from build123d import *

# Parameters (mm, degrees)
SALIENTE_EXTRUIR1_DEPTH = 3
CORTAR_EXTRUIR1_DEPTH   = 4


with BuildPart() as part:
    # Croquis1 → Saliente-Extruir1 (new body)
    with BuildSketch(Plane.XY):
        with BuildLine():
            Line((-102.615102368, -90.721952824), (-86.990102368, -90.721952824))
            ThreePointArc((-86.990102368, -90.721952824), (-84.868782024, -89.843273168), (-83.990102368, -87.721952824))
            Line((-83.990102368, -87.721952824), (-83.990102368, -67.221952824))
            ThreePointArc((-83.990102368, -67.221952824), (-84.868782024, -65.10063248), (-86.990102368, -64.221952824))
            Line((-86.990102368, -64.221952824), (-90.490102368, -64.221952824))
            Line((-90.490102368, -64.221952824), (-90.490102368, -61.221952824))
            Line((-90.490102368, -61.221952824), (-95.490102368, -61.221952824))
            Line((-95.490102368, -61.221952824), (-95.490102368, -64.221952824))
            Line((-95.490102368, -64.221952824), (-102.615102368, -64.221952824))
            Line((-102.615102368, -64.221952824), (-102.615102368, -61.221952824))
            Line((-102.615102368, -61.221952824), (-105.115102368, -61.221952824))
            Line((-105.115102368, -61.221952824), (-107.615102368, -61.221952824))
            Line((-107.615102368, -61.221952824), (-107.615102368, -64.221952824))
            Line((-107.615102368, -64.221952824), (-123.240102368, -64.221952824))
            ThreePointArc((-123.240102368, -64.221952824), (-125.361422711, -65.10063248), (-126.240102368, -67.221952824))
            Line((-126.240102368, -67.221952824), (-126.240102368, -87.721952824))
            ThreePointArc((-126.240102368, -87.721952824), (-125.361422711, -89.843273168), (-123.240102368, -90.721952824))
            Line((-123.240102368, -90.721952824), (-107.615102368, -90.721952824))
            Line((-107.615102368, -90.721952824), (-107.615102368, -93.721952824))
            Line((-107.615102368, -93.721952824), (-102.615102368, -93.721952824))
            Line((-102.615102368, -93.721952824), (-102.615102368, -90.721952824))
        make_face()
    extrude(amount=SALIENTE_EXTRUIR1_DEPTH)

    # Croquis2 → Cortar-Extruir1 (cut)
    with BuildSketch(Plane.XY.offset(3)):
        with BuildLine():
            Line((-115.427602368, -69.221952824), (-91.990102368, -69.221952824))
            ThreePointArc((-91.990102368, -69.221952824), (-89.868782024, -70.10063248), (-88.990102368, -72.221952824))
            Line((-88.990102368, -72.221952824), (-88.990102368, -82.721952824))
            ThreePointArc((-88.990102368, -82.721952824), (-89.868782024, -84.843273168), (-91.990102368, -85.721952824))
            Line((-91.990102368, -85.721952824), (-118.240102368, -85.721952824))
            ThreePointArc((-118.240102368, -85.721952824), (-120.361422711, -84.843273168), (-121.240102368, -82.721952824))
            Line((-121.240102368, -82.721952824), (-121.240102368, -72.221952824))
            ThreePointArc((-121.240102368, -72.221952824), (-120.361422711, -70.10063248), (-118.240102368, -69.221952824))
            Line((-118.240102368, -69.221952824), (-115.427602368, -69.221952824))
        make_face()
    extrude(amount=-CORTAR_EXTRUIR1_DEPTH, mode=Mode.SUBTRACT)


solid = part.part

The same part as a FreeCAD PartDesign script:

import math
import FreeCAD as App
import Part
import Sketcher
from FreeCAD import Vector

doc = App.newDocument("Part")
body = doc.addObject("PartDesign::Body", "Body")

# Sketch on XY plane
sketch1 = doc.addObject("Sketcher::SketchObject", "Sketch")
body.addObject(sketch1)
sketch1.AttachmentSupport = (doc.XY_Plane, [""])
sketch1.MapMode = "FlatFace"
sketch1.addGeometry([
    Part.LineSegment(Vector(-102.6, -90.7, 0), Vector(-87, -90.7, 0)),  # 0
    Part.ArcOfCircle(Part.Circle(Vector(-87, -87.7, 0), Vector(0, 0, 1), 3), math.radians(-90), math.radians(0)),  # 1
    Part.LineSegment(Vector(-84, -87.7, 0), Vector(-84, -67.2, 0)),  # 2
    Part.ArcOfCircle(Part.Circle(Vector(-87, -67.2, 0), Vector(0, 0, 1), 3), math.radians(0), math.radians(90)),  # 3
    Part.LineSegment(Vector(-87, -64.2, 0), Vector(-90.5, -64.2, 0)),  # 4
    Part.LineSegment(Vector(-90.5, -64.2, 0), Vector(-90.5, -61.2, 0)),  # 5
    Part.LineSegment(Vector(-90.5, -61.2, 0), Vector(-95.5, -61.2, 0)),  # 6
    Part.LineSegment(Vector(-95.5, -61.2, 0), Vector(-95.5, -64.2, 0)),  # 7
    Part.LineSegment(Vector(-95.5, -64.2, 0), Vector(-102.6, -64.2, 0)),  # 8
    Part.LineSegment(Vector(-102.6, -64.2, 0), Vector(-102.6, -61.2, 0)),  # 9
    Part.LineSegment(Vector(-102.6, -61.2, 0), Vector(-107.6, -61.2, 0)),  # 10
    Part.LineSegment(Vector(-107.6, -61.2, 0), Vector(-107.6, -64.2, 0)),  # 11
    Part.LineSegment(Vector(-107.6, -64.2, 0), Vector(-123.2, -64.2, 0)),  # 12
    Part.ArcOfCircle(Part.Circle(Vector(-123.2, -67.2, 0), Vector(0, 0, 1), 3), math.radians(90), math.radians(180)),  # 13
    Part.LineSegment(Vector(-126.2, -67.2, 0), Vector(-126.2, -87.7, 0)),  # 14
    Part.ArcOfCircle(Part.Circle(Vector(-123.2, -87.7, 0), Vector(0, 0, 1), 3), math.radians(180), math.radians(270)),  # 15
    Part.LineSegment(Vector(-123.2, -90.7, 0), Vector(-107.6, -90.7, 0)),  # 16
    Part.LineSegment(Vector(-107.6, -90.7, 0), Vector(-107.6, -93.7, 0)),  # 17
    Part.LineSegment(Vector(-107.6, -93.7, 0), Vector(-102.6, -93.7, 0)),  # 18
    Part.LineSegment(Vector(-102.6, -93.7, 0), Vector(-102.6, -90.7, 0)),  # 19
], False)
sketch1.addConstraint([
    Sketcher.Constraint("Tangent", 0, 2, 1, 1),
    Sketcher.Constraint("Tangent", 1, 2, 2, 1),
    Sketcher.Constraint("Tangent", 2, 2, 3, 1),
    Sketcher.Constraint("Tangent", 3, 2, 4, 1),
    Sketcher.Constraint("Coincident", 4, 2, 5, 1),
    Sketcher.Constraint("Coincident", 5, 2, 6, 1),
    Sketcher.Constraint("Coincident", 6, 2, 7, 1),
    Sketcher.Constraint("Coincident", 7, 2, 8, 1),
    Sketcher.Constraint("Coincident", 8, 2, 9, 1),
    Sketcher.Constraint("Coincident", 9, 2, 10, 1),
    Sketcher.Constraint("Coincident", 10, 2, 11, 1),
    Sketcher.Constraint("Coincident", 11, 2, 12, 1),
    Sketcher.Constraint("Tangent", 12, 2, 13, 1),
    Sketcher.Constraint("Tangent", 13, 2, 14, 1),
    Sketcher.Constraint("Tangent", 14, 2, 15, 1),
    Sketcher.Constraint("Tangent", 15, 2, 16, 1),
    Sketcher.Constraint("Coincident", 16, 2, 17, 1),
    Sketcher.Constraint("Coincident", 17, 2, 18, 1),
    Sketcher.Constraint("Coincident", 18, 2, 19, 1),
    Sketcher.Constraint("Coincident", 19, 2, 0, 1),
    Sketcher.Constraint("Horizontal", 0),
    Sketcher.Constraint("Vertical", 2),
    Sketcher.Constraint("Horizontal", 4),
    Sketcher.Constraint("Vertical", 5),
    Sketcher.Constraint("Horizontal", 6),
    Sketcher.Constraint("Vertical", 7),
    Sketcher.Constraint("Horizontal", 8),
    Sketcher.Constraint("Vertical", 9),
    Sketcher.Constraint("Horizontal", 10),
    Sketcher.Constraint("Vertical", 11),
    Sketcher.Constraint("Horizontal", 12),
    Sketcher.Constraint("Vertical", 14),
    Sketcher.Constraint("Horizontal", 16),
    Sketcher.Constraint("Vertical", 17),
    Sketcher.Constraint("Horizontal", 18),
    Sketcher.Constraint("Vertical", 19),
    Sketcher.Constraint("Equal", 1, 3),
    Sketcher.Constraint("Equal", 3, 13),
    Sketcher.Constraint("Equal", 13, 15),
    Sketcher.Constraint("Horizontal", 3, 3, 13, 3),
    Sketcher.Constraint("Horizontal", 1, 3, 15, 3),
    Sketcher.Constraint("Horizontal", 4, 2, 7, 2),
    Sketcher.Constraint("Horizontal", 6, 2, 9, 2),
    Sketcher.Constraint("Vertical", 11, 2, 16, 2),
    Sketcher.Constraint("Vertical", 9, 2, 18, 2),
    Sketcher.Constraint("Equal", 6, 10),
    Sketcher.Constraint("Equal", 0, 12),
    Sketcher.Constraint("Equal", 11, 17),
    Sketcher.Constraint("Radius", 1, 3.0),
    Sketcher.Constraint("DistanceX", 6, 2, 6, 1, 5.0),
    Sketcher.Constraint("DistanceY", 5, 1, 5, 2, 3.0),
    Sketcher.Constraint("DistanceX", 4, 2, 4, 1, 3.5),
    Sketcher.Constraint("DistanceY", 2, 1, 2, 2, 20.5),
    Sketcher.Constraint("DistanceX", 0, 1, 0, 2, 15.625),
    Sketcher.Constraint("DistanceX", 1, 3, -1, 1, 86.990102),
    Sketcher.Constraint("DistanceY", 1, 3, -1, 1, 87.721953),
])
pad1 = doc.addObject("PartDesign::Pad", "Pad")
body.addObject(pad1)
pad1.Profile = sketch1
pad1.Length = 3

# Sketch on XY plane
sketch2 = doc.addObject("Sketcher::SketchObject", "Sketch001")
body.addObject(sketch2)
sketch2.AttachmentSupport = (doc.XY_Plane, [""])
sketch2.MapMode = "FlatFace"
sketch2.AttachmentOffset = App.Placement(Vector(0, 0, 3), App.Rotation())
sketch2.addGeometry([
    Part.ArcOfCircle(Part.Circle(Vector(-92, -72.2, 0), Vector(0, 0, 1), 3), math.radians(0), math.radians(90)),  # 0
    Part.LineSegment(Vector(-92, -69.2, 0), Vector(-118.2, -69.2, 0)),  # 1
    Part.ArcOfCircle(Part.Circle(Vector(-118.2, -72.2, 0), Vector(0, 0, 1), 3), math.radians(90), math.radians(180)),  # 2
    Part.LineSegment(Vector(-121.2, -72.2, 0), Vector(-121.2, -82.7, 0)),  # 3
    Part.ArcOfCircle(Part.Circle(Vector(-118.2, -82.7, 0), Vector(0, 0, 1), 3), math.radians(180), math.radians(270)),  # 4
    Part.LineSegment(Vector(-118.2, -85.7, 0), Vector(-92, -85.7, 0)),  # 5
    Part.ArcOfCircle(Part.Circle(Vector(-92, -82.7, 0), Vector(0, 0, 1), 3), math.radians(-90), math.radians(0)),  # 6
    Part.LineSegment(Vector(-89, -82.7, 0), Vector(-89, -72.2, 0)),  # 7
], False)
sketch2.addConstraint([
    Sketcher.Constraint("Tangent", 0, 2, 1, 1),
    Sketcher.Constraint("Tangent", 1, 2, 2, 1),
    Sketcher.Constraint("Tangent", 2, 2, 3, 1),
    Sketcher.Constraint("Tangent", 3, 2, 4, 1),
    Sketcher.Constraint("Tangent", 4, 2, 5, 1),
    Sketcher.Constraint("Tangent", 5, 2, 6, 1),
    Sketcher.Constraint("Tangent", 6, 2, 7, 1),
    Sketcher.Constraint("Tangent", 7, 2, 0, 1),
    Sketcher.Constraint("Horizontal", 1),
    Sketcher.Constraint("Vertical", 3),
    Sketcher.Constraint("Horizontal", 5),
    Sketcher.Constraint("Vertical", 7),
    Sketcher.Constraint("Equal", 0, 2),
    Sketcher.Constraint("Equal", 2, 4),
    Sketcher.Constraint("Equal", 4, 6),
    Sketcher.Constraint("Radius", 0, 3.0),
    Sketcher.Constraint("DistanceY", 3, 2, 3, 1, 10.5),
    Sketcher.Constraint("DistanceX", 1, 2, 1, 1, 26.25),
    Sketcher.Constraint("DistanceX", 0, 3, -1, 1, 91.990102),
    Sketcher.Constraint("DistanceY", 0, 3, -1, 1, 72.221953),
])
pocket1 = doc.addObject("PartDesign::Pocket", "Pocket")
body.addObject(pocket1)
pocket1.Profile = sketch2
pocket1.Length = 4

doc.recompute()
